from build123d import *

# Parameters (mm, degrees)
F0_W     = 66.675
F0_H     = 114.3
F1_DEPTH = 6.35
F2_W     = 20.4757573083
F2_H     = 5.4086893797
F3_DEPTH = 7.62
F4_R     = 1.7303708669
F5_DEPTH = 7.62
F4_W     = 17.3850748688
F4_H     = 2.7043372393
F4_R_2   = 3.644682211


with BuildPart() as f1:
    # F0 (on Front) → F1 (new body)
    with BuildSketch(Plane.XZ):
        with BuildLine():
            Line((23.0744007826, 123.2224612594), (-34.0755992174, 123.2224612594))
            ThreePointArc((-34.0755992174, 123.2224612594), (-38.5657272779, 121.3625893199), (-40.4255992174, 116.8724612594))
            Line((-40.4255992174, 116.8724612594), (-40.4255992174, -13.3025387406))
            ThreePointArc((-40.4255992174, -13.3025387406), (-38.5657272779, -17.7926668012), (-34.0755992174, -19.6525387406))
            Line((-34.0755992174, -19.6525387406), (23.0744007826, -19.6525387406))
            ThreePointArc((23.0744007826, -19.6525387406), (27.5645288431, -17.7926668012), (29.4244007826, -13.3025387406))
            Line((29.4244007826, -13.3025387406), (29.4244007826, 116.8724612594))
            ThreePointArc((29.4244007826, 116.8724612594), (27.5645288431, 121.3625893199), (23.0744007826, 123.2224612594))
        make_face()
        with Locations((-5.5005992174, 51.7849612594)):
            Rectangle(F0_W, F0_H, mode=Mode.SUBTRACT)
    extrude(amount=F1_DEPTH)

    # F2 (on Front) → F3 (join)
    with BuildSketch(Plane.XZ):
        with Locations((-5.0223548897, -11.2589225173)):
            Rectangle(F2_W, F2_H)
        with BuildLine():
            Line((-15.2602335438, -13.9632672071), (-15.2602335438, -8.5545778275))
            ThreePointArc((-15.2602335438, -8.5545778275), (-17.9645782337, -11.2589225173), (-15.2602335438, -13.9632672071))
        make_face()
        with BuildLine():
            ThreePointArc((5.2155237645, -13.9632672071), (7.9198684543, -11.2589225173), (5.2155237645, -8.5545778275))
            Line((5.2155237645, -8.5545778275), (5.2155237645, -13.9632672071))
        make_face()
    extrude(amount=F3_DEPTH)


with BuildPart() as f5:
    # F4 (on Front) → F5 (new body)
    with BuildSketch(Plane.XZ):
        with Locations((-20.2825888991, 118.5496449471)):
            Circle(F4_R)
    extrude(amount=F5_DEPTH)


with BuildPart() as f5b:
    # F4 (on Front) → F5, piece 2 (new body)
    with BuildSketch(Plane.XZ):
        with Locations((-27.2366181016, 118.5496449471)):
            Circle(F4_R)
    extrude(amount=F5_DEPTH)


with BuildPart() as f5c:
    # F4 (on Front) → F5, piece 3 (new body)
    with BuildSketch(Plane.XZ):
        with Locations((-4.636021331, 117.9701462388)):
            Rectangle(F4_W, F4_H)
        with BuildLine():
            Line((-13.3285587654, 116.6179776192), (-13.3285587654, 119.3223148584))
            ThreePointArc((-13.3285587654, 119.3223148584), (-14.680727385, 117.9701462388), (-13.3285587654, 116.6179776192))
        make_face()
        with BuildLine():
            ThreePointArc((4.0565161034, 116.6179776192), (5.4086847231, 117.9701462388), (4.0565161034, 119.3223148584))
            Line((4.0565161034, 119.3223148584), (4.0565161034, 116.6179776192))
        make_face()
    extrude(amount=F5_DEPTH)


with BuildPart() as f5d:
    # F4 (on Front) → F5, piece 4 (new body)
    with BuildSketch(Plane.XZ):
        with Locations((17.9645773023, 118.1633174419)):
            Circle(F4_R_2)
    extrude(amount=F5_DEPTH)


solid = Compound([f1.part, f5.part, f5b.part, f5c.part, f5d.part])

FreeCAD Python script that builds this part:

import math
import FreeCAD as App
import Part
import Sketcher

V = App.Vector
Q = App.Units.Quantity

doc = App.newDocument("Part")
params = doc.addObject("Spreadsheet::Sheet", "Params")
for row, (alias, value) in enumerate([
    ("sketch1_radius", "0.25 in"),
    ("sketch1_height", "4.5 in"),
    ("sketch1_width", "2.25 in"),
    ("sketch1_width2", "2.625 in"),
    ("sketch1_height2", "5.125 in"),
    ("pad1_length", "0.25 in"),
    ("pad2_length", "0.3 in"),
    ("pad3_length", "0.3 in"),
    ("pad4_length", "0.3 in"),
    ("pad5_length", "0.3 in"),
    ("pad6_length", "0.3 in"),
], start=1):
    params.set(f"A{row}", alias)
    params.set(f"B{row}", "=" + value)
    params.setAlias(f"B{row}", alias)

body = doc.addObject("PartDesign::Body", "Body")

# Sketch on XZ plane
sketch1 = body.newObject("Sketcher::SketchObject", "Sketch")
sketch1.AttachmentSupport = (doc.getObject("XZ_Plane"), [""])
sketch1.MapMode = "FlatFace"
sketch1.addGeometry([
    Part.LineSegment(V(23.074401, 123.222461, 0), V(-34.075599, 123.222461, 0)),  # 0
    Part.ArcOfCircle(Part.Circle(V(-34.075599, 116.872461, 0), V(0, 0, 1), 6.35), math.radians(90), math.radians(180)),  # 1
    Part.LineSegment(V(-40.425599, 116.872461, 0), V(-40.425599, -13.302539, 0)),  # 2
    Part.ArcOfCircle(Part.Circle(V(-34.075599, -13.302539, 0), V(0, 0, 1), 6.35), math.radians(180), math.radians(270)),  # 3
    Part.LineSegment(V(-34.075599, -19.652539, 0), V(23.074401, -19.652539, 0)),  # 4
    Part.ArcOfCircle(Part.Circle(V(23.074401, -13.302539, 0), V(0, 0, 1), 6.35), math.radians(-90), math.radians(0)),  # 5
    Part.LineSegment(V(29.424401, -13.302539, 0), V(29.424401, 116.872461, 0)),  # 6
    Part.ArcOfCircle(Part.Circle(V(23.074401, 116.872461, 0), V(0, 0, 1), 6.35), math.radians(0), math.radians(90)),  # 7
    Part.LineSegment(V(27.836901, -5.365039, 0), V(-38.838099, -5.365039, 0)),  # 8
    Part.LineSegment(V(-38.838099, -5.365039, 0), V(-38.838099, 108.934961, 0)),  # 9
    Part.LineSegment(V(-38.838099, 108.934961, 0), V(27.836901, 108.934961, 0)),  # 10
    Part.LineSegment(V(27.836901, 108.934961, 0), V(27.836901, -5.365039, 0)),  # 11
], False)
sketch1.addConstraint([
    Sketcher.Constraint("Tangent", 0, 2, 1, 1),
    Sketcher.Constraint("Tangent", 1, 2, 2, 1),
    Sketcher.Constraint("Tangent", 2, 2, 3, 1),
    Sketcher.Constraint("Tangent", 3, 2, 4, 1),
    Sketcher.Constraint("Tangent", 4, 2, 5, 1),
    Sketcher.Constraint("Tangent", 5, 2, 6, 1),
    Sketcher.Constraint("Tangent", 6, 2, 7, 1),
    Sketcher.Constraint("Tangent", 7, 2, 0, 1),
    Sketcher.Constraint("Coincident", 8, 2, 9, 1),
    Sketcher.Constraint("Coincident", 9, 2, 10, 1),
    Sketcher.Constraint("Coincident", 10, 2, 11, 1),
    Sketcher.Constraint("Coincident", 11, 2, 8, 1),
    Sketcher.Constraint("Horizontal", 0),
    Sketcher.Constraint("Vertical", 2),
    Sketcher.Constraint("Horizontal", 4),
    Sketcher.Constraint("Vertical", 6),
    Sketcher.Constraint("Horizontal", 8),
    Sketcher.Constraint("Vertical", 9),
    Sketcher.Constraint("Horizontal", 10),
    Sketcher.Constraint("Vertical", 11),
    Sketcher.Constraint("Equal", 1, 3),
    Sketcher.Constraint("Equal", 3, 5),
    Sketcher.Constraint("Equal", 5, 7),
    Sketcher.Constraint("Radius", 1, Q("0.25 in")),
    Sketcher.Constraint("DistanceY", 9, 1, 9, 2, Q("4.5 in")),
    Sketcher.Constraint("DistanceX", 0, 2, 0, 1, Q("2.25 in")),
    Sketcher.Constraint("DistanceX", 8, 2, 8, 1, Q("2.625 in")),
    Sketcher.Constraint("DistanceY", 2, 2, 2, 1, Q("5.125 in")),
    Sketcher.Constraint("DistanceX", 2, 2, 8, 2, Q("0.0625 in")),
    Sketcher.Constraint("DistanceY", 2, 2, 8, 2, Q("0.3125 in")),
    Sketcher.Constraint("DistanceX", 1, 3, -1, 1, Q("34.075599 mm")),
    Sketcher.Constraint("DistanceY", -1, 1, 1, 3, Q("116.872461 mm")),
])
sketch1.setExpression("Constraints[23]", "Params.sketch1_radius")
sketch1.setExpression("Constraints[24]", "Params.sketch1_height")
sketch1.setExpression("Constraints[25]", "Params.sketch1_width")
sketch1.setExpression("Constraints[26]", "Params.sketch1_width2")
sketch1.setExpression("Constraints[27]", "Params.sketch1_height2")
pad1 = body.newObject("PartDesign::Pad", "Pad")
pad1.Profile = sketch1
pad1.setExpression("Length", "Params.pad1_length")

# Sketch on XZ plane
sketch2 = body.newObject("Sketcher::SketchObject", "Sketch001")
sketch2.AttachmentSupport = (doc.getObject("XZ_Plane"), [""])
sketch2.MapMode = "FlatFace"
sketch2.addGeometry([
    Part.LineSegment(V(-15.260234, -13.963267, 0), V(5.215524, -13.963267, 0)),
    Part.ArcOfCircle(Part.Circle(V(5.215524, -11.258923, 0), V(0, 0, 1), 2.704345), math.radians(-90), math.radians(90)),
    Part.LineSegment(V(5.215524, -8.554578, 0), V(-15.260234, -8.554578, 0)),
    Part.ArcOfCircle(Part.Circle(V(-15.260234, -11.258923, 0), V(0, 0, 1), 2.704345), math.radians(90), math.radians(270)),
], False)
sketch2.addConstraint([
    Sketcher.Constraint("Tangent", 0, 2, 1, 1),
    Sketcher.Constraint("Tangent", 1, 2, 2, 1),
    Sketcher.Constraint("Tangent", 2, 2, 3, 1),
    Sketcher.Constraint("Tangent", 3, 2, 0, 1),
    Sketcher.Constraint("Horizontal", 0),
    Sketcher.Constraint("Horizontal", 2),
    Sketcher.Constraint("Radius", 1, Q("2.704345 mm")),
    Sketcher.Constraint("DistanceX", 0, 1, 0, 2, Q("20.475757 mm")),
    Sketcher.Constraint("DistanceX", -1, 1, 1, 3, Q("5.215524 mm")),
    Sketcher.Constraint("DistanceY", 1, 3, -1, 1, Q("11.258923 mm")),
])
pad2 = body.newObject("PartDesign::Pad", "Pad001")
pad2.Profile = sketch2
pad2.setExpression("Length", "Params.pad2_length")
body2 = doc.addObject("PartDesign::Body", "Body001")

# Sketch on XZ plane
sketch3 = body2.newObject("Sketcher::SketchObject", "Sketch002")
sketch3.AttachmentSupport = (doc.getObject("XZ_Plane001"), [""])
sketch3.MapMode = "FlatFace"
sketch3.addGeometry(Part.Circle(V(-20.282589, 118.549645, 0), V(0, 0, 1), 1.730371), False)
sketch3.addConstraint([
    Sketcher.Constraint("Diameter", 0, Q("3.460742 mm")),
    Sketcher.Constraint("DistanceX", 0, 3, -1, 1, Q("20.282589 mm")),
    Sketcher.Constraint("DistanceY", -1, 1, 0, 3, Q("118.549645 mm")),
])
pad3 = body2.newObject("PartDesign::Pad", "Pad002")
pad3.Profile = sketch3
pad3.setExpression("Length", "Params.pad3_length")
body3 = doc.addObject("PartDesign::Body", "Body002")

# Sketch on XZ plane
sketch4 = body3.newObject("Sketcher::SketchObject", "Sketch003")
sketch4.AttachmentSupport = (doc.getObject("XZ_Plane002"), [""])
sketch4.MapMode = "FlatFace"
sketch4.addGeometry(Part.Circle(V(-27.236618, 118.549645, 0), V(0, 0, 1), 1.730371), False)
sketch4.addConstraint([
    Sketcher.Constraint("Diameter", 0, Q("3.460742 mm")),
    Sketcher.Constraint("DistanceX", 0, 3, -1, 1, Q("27.236618 mm")),
    Sketcher.Constraint("DistanceY", -1, 1, 0, 3, Q("118.549645 mm")),
])
pad4 = body3.newObject("PartDesign::Pad", "Pad003")
pad4.Profile = sketch4
pad4.setExpression("Length", "Params.pad4_length")
body4 = doc.addObject("PartDesign::Body", "Body003")

# Sketch on XZ plane
sketch5 = body4.newObject("Sketcher::SketchObject", "Sketch004")
sketch5.AttachmentSupport = (doc.getObject("XZ_Plane003"), [""])
sketch5.MapMode = "FlatFace"
sketch5.addGeometry([
    Part.LineSegment(V(-13.328559, 116.617978, 0), V(4.056516, 116.617978, 0)),
    Part.ArcOfCircle(Part.Circle(V(4.056516, 117.970146, 0), V(0, 0, 1), 1.352169), math.radians(-90), math.radians(90)),
    Part.LineSegment(V(4.056516, 119.322315, 0), V(-13.328559, 119.322315, 0)),
    Part.ArcOfCircle(Part.Circle(V(-13.328559, 117.970146, 0), V(0, 0, 1), 1.352169), math.radians(90), math.radians(270)),
], False)
sketch5.addConstraint([
    Sketcher.Constraint("Tangent", 0, 2, 1, 1),
    Sketcher.Constraint("Tangent", 1, 2, 2, 1),
    Sketcher.Constraint("Tangent", 2, 2, 3, 1),
    Sketcher.Constraint("Tangent", 3, 2, 0, 1),
    Sketcher.Constraint("Horizontal", 0),
    Sketcher.Constraint("Horizontal", 2),
    Sketcher.Constraint("Radius", 1, Q("1.352169 mm")),
    Sketcher.Constraint("DistanceX", 0, 1, 0, 2, Q("17.385075 mm")),
    Sketcher.Constraint("DistanceX", 3, 3, -1, 1, Q("13.328559 mm")),
    Sketcher.Constraint("DistanceY", -1, 1, 1, 3, Q("117.970146 mm")),
])
pad5 = body4.newObject("PartDesign::Pad", "Pad004")
pad5.Profile = sketch5
pad5.setExpression("Length", "Params.pad5_length")
body5 = doc.addObject("PartDesign::Body", "Body004")

# Sketch on XZ plane
sketch6 = body5.newObject("Sketcher::SketchObject", "Sketch005")
sketch6.AttachmentSupport = (doc.getObject("XZ_Plane004"), [""])
sketch6.MapMode = "FlatFace"
sketch6.addGeometry(Part.Circle(V(17.964577, 118.163317, 0), V(0, 0, 1), 3.644682), False)
sketch6.addConstraint([
    Sketcher.Constraint("Diameter", 0, Q("7.289364 mm")),
    Sketcher.Constraint("DistanceX", -1, 1, 0, 3, Q("17.964577 mm")),
    Sketcher.Constraint("DistanceY", -1, 1, 0, 3, Q("118.163317 mm")),
])
pad6 = body5.newObject("PartDesign::Pad", "Pad005")
pad6.Profile = sketch6
pad6.setExpression("Length", "Params.pad6_length")

doc.recompute()
